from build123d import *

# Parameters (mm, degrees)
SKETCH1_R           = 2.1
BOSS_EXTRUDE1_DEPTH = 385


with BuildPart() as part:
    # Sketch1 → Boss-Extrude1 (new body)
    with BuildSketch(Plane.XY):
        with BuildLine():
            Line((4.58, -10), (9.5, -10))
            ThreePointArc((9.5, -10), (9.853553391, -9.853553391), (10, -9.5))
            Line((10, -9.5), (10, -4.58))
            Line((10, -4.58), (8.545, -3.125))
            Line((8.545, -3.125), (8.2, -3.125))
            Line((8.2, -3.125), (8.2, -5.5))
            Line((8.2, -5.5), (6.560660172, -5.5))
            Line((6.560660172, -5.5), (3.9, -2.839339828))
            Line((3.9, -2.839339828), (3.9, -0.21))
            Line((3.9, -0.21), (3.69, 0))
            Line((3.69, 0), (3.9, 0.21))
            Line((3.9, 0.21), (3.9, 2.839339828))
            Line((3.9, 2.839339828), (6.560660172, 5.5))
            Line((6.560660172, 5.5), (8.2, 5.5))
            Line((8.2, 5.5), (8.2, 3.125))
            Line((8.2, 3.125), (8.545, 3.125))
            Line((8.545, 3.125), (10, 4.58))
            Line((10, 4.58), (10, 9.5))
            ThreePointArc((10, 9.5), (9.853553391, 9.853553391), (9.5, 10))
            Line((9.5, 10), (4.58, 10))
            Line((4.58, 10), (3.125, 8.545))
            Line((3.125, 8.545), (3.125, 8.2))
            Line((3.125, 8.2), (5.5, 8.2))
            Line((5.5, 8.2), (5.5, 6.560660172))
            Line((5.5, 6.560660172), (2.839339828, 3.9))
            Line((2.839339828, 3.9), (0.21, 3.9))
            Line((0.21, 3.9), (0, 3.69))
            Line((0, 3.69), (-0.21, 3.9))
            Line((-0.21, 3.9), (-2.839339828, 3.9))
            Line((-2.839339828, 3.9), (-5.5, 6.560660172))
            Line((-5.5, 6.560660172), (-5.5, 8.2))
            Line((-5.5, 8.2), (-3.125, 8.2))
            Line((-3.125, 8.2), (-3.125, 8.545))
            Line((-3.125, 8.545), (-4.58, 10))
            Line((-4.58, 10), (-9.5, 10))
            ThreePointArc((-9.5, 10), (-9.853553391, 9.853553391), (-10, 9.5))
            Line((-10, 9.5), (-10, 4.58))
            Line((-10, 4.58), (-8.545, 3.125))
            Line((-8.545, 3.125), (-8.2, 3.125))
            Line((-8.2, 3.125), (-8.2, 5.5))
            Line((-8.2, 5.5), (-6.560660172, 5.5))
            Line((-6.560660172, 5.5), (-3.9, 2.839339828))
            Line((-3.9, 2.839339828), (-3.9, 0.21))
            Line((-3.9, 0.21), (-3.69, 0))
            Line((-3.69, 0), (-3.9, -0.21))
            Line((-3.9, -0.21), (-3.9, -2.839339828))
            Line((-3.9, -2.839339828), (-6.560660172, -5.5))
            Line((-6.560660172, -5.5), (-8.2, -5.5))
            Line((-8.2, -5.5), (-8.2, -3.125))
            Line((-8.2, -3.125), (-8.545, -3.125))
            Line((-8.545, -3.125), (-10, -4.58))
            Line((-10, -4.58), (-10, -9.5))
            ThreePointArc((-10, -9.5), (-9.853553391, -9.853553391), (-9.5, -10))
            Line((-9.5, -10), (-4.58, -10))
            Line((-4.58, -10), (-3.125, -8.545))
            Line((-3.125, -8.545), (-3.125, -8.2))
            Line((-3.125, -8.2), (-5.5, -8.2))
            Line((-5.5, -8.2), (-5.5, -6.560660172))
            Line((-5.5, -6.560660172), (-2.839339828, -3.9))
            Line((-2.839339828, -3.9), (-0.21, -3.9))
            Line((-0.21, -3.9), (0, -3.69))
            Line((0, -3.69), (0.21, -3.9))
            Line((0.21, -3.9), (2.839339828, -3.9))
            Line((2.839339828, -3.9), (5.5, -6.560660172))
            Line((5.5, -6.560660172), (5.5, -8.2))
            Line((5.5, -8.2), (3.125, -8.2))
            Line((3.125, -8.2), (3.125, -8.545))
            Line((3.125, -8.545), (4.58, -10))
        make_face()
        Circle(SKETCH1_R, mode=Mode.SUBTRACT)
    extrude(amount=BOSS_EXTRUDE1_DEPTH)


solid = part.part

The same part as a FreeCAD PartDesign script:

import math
import FreeCAD as App
import Part
import Sketcher
from FreeCAD import Vector

doc = App.newDocument("Part")
body = doc.addObject("PartDesign::Body", "Body")

sketch1 = body.newObject("Sketcher::SketchObject", "Sketch")
sketch1.AttachmentSupport = (doc.getObject("XY_Plane"), [""])
sketch1.MapMode = "FlatFace"
sketch1.addGeometry([
    Part.LineSegment(Vector(4.58, -10, 0), Vector(9.5, -10, 0)),
    Part.ArcOfCircle(Part.Circle(Vector(9.5, -9.5, 0), Vector(0, 0, 1), 0.5), math.radians(-90), math.radians(0)),
    Part.LineSegment(Vector(10, -9.5, 0), Vector(10, -4.58, 0)),
    Part.LineSegment(Vector(10, -4.58, 0), Vector(8.545, -3.125, 0)),
    Part.LineSegment(Vector(8.545, -3.125, 0), Vector(8.2, -3.125, 0)),
    Part.LineSegment(Vector(8.2, -3.125, 0), Vector(8.2, -5.5, 0)),
    Part.LineSegment(Vector(8.2, -5.5, 0), Vector(6.56066, -5.5, 0)),
    Part.LineSegment(Vector(6.56066, -5.5, 0), Vector(3.9, -2.83934, 0)),
    Part.LineSegment(Vector(3.9, -2.83934, 0), Vector(3.9, -0.21, 0)),
    Part.LineSegment(Vector(3.9, -0.21, 0), Vector(3.69, 0, 0)),
    Part.LineSegment(Vector(3.69, 0, 0), Vector(3.9, 0.21, 0)),
    Part.LineSegment(Vector(3.9, 0.21, 0), Vector(3.9, 2.83934, 0)),
    Part.LineSegment(Vector(3.9, 2.83934, 0), Vector(6.56066, 5.5, 0)),
    Part.LineSegment(Vector(6.56066, 5.5, 0), Vector(8.2, 5.5, 0)),
    Part.LineSegment(Vector(8.2, 5.5, 0), Vector(8.2, 3.125, 0)),
    Part.LineSegment(Vector(8.2, 3.125, 0), Vector(8.545, 3.125, 0)),
    Part.LineSegment(Vector(8.545, 3.125, 0), Vector(10, 4.58, 0)),
    Part.LineSegment(Vector(10, 4.58, 0), Vector(10, 9.5, 0)),
    Part.ArcOfCircle(Part.Circle(Vector(9.5, 9.5, 0), Vector(0, 0, 1), 0.5), math.radians(0), math.radians(90)),
    Part.LineSegment(Vector(9.5, 10, 0), Vector(4.58, 10, 0)),
    Part.LineSegment(Vector(4.58, 10, 0), Vector(3.125, 8.545, 0)),
    Part.LineSegment(Vector(3.125, 8.545, 0), Vector(3.125, 8.2, 0)),
    Part.LineSegment(Vector(3.125, 8.2, 0), Vector(5.5, 8.2, 0)),
    Part.LineSegment(Vector(5.5, 8.2, 0), Vector(5.5, 6.56066, 0)),
    Part.LineSegment(Vector(5.5, 6.56066, 0), Vector(2.83934, 3.9, 0)),
    Part.LineSegment(Vector(2.83934, 3.9, 0), Vector(0.21, 3.9, 0)),
    Part.LineSegment(Vector(0.21, 3.9, 0), Vector(0, 3.69, 0)),
    Part.LineSegment(Vector(0, 3.69, 0), Vector(-0.21, 3.9, 0)),
    Part.LineSegment(Vector(-0.21, 3.9, 0), Vector(-2.83934, 3.9, 0)),
    Part.LineSegment(Vector(-2.83934, 3.9, 0), Vector(-5.5, 6.56066, 0)),
    Part.LineSegment(Vector(-5.5, 6.56066, 0), Vector(-5.5, 8.2, 0)),
    Part.LineSegment(Vector(-5.5, 8.2, 0), Vector(-3.125, 8.2, 0)),
    Part.LineSegment(Vector(-3.125, 8.2, 0), Vector(-3.125, 8.545, 0)),
    Part.LineSegment(Vector(-3.125, 8.545, 0), Vector(-4.58, 10, 0)),
    Part.LineSegment(Vector(-4.58, 10, 0), Vector(-9.5, 10, 0)),
    Part.ArcOfCircle(Part.Circle(Vector(-9.5, 9.5, 0), Vector(0, 0, 1), 0.5), math.radians(90), math.radians(180)),
    Part.LineSegment(Vector(-10, 9.5, 0), Vector(-10, 4.58, 0)),
    Part.LineSegment(Vector(-10, 4.58, 0), Vector(-8.545, 3.125, 0)),
    Part.LineSegment(Vector(-8.545, 3.125, 0), Vector(-8.2, 3.125, 0)),
    Part.LineSegment(Vector(-8.2, 3.125, 0), Vector(-8.2, 5.5, 0)),
    Part.LineSegment(Vector(-8.2, 5.5, 0), Vector(-6.56066, 5.5, 0)),
    Part.LineSegment(Vector(-6.56066, 5.5, 0), Vector(-3.9, 2.83934, 0)),
    Part.LineSegment(Vector(-3.9, 2.83934, 0), Vector(-3.9, 0.21, 0)),
    Part.LineSegment(Vector(-3.9, 0.21, 0), Vector(-3.69, 0, 0)),
    Part.LineSegment(Vector(-3.69, 0, 0), Vector(-3.9, -0.21, 0)),
    Part.LineSegment(Vector(-3.9, -0.21, 0), Vector(-3.9, -2.83934, 0)),
    Part.LineSegment(Vector(-3.9, -2.83934, 0), Vector(-6.56066, -5.5, 0)),
    Part.LineSegment(Vector(-6.56066, -5.5, 0), Vector(-8.2, -5.5, 0)),
    Part.LineSegment(Vector(-8.2, -5.5, 0), Vector(-8.2, -3.125, 0)),
    Part.LineSegment(Vector(-8.2, -3.125, 0), Vector(-8.545, -3.125, 0)),
    Part.LineSegment(Vector(-8.545, -3.125, 0), Vector(-10, -4.58, 0)),
    Part.LineSegment(Vector(-10, -4.58, 0), Vector(-10, -9.5, 0)),
    Part.ArcOfCircle(Part.Circle(Vector(-9.5, -9.5, 0), Vector(0, 0, 1), 0.5), math.radians(180), math.radians(270)),
    Part.LineSegment(Vector(-9.5, -10, 0), Vector(-4.58, -10, 0)),
    Part.LineSegment(Vector(-4.58, -10, 0), Vector(-3.125, -8.545, 0)),
    Part.LineSegment(Vector(-3.125, -8.545, 0), Vector(-3.125, -8.2, 0)),
    Part.LineSegment(Vector(-3.125, -8.2, 0), Vector(-5.5, -8.2, 0)),
    Part.LineSegment(Vector(-5.5, -8.2, 0), Vector(-5.5, -6.56066, 0)),
    Part.LineSegment(Vector(-5.5, -6.56066, 0), Vector(-2.83934, -3.9, 0)),
    Part.LineSegment(Vector(-2.83934, -3.9, 0), Vector(-0.21, -3.9, 0)),
    Part.LineSegment(Vector(-0.21, -3.9, 0), Vector(0, -3.69, 0)),
    Part.LineSegment(Vector(0, -3.69, 0), Vector(0.21, -3.9, 0)),
    Part.LineSegment(Vector(0.21, -3.9, 0), Vector(2.83934, -3.9, 0)),
    Part.LineSegment(Vector(2.83934, -3.9, 0), Vector(5.5, -6.56066, 0)),
    Part.LineSegment(Vector(5.5, -6.56066, 0), Vector(5.5, -8.2, 0)),
    Part.LineSegment(Vector(5.5, -8.2, 0), Vector(3.125, -8.2, 0)),
    Part.LineSegment(Vector(3.125, -8.2, 0), Vector(3.125, -8.545, 0)),
    Part.LineSegment(Vector(3.125, -8.545, 0), Vector(4.58, -10, 0)),
    Part.Circle(Vector(0, 0, 0), Vector(0, 0, 1), 2.1),
], False)
sketch1.addConstraint([
    Sketcher.Constraint("Tangent", 0, 2, 1, 1),
    Sketcher.Constraint("Tangent", 1, 2, 2, 1),
    Sketcher.Constraint("Coincident", 2, 2, 3, 1),
    Sketcher.Constraint("Coincident", 3, 2, 4, 1),
    Sketcher.Constraint("Coincident", 4, 2, 5, 1),
    Sketcher.Constraint("Coincident", 5, 2, 6, 1),
    Sketcher.Constraint("Coincident", 6, 2, 7, 1),
    Sketcher.Constraint("Coincident", 7, 2, 8, 1),
    Sketcher.Constraint("Coincident", 8, 2, 9, 1),
    Sketcher.Constraint("Coincident", 9, 2, 10, 1),
    Sketcher.Constraint("Coincident", 10, 2, 11, 1),
    Sketcher.Constraint("Coincident", 11, 2, 12, 1),
    Sketcher.Constraint("Coincident", 12, 2, 13, 1),
    Sketcher.Constraint("Coincident", 13, 2, 14, 1),
    Sketcher.Constraint("Coincident", 14, 2, 15, 1),
    Sketcher.Constraint("Coincident", 15, 2, 16, 1),
    Sketcher.Constraint("Coincident", 16, 2, 17, 1),
    Sketcher.Constraint("Tangent", 17, 2, 18, 1),
    Sketcher.Constraint("Tangent", 18, 2, 19, 1),
    Sketcher.Constraint("Coincident", 19, 2, 20, 1),
    Sketcher.Constraint("Coincident", 20, 2, 21, 1),
    Sketcher.Constraint("Coincident", 21, 2, 22, 1),
    Sketcher.Constraint("Coincident", 22, 2, 23, 1),
    Sketcher.Constraint("Coincident", 23, 2, 24, 1),
    Sketcher.Constraint("Coincident", 24, 2, 25, 1),
    Sketcher.Constraint("Coincident", 25, 2, 26, 1),
    Sketcher.Constraint("Coincident", 26, 2, 27, 1),
    Sketcher.Constraint("Coincident", 27, 2, 28, 1),
    Sketcher.Constraint("Coincident", 28, 2, 29, 1),
    Sketcher.Constraint("Coincident", 29, 2, 30, 1),
    Sketcher.Constraint("Coincident", 30, 2, 31, 1),
    Sketcher.Constraint("Coincident", 31, 2, 32, 1),
    Sketcher.Constraint("Coincident", 32, 2, 33, 1),
    Sketcher.Constraint("Coincident", 33, 2, 34, 1),
    Sketcher.Constraint("Tangent", 34, 2, 35, 1),
    Sketcher.Constraint("Tangent", 35, 2, 36, 1),
    Sketcher.Constraint("Coincident", 36, 2, 37, 1),
    Sketcher.Constraint("Coincident", 37, 2, 38, 1),
    Sketcher.Constraint("Coincident", 38, 2, 39, 1),
    Sketcher.Constraint("Coincident", 39, 2, 40, 1),
    Sketcher.Constraint("Coincident", 40, 2, 41, 1),
    Sketcher.Constraint("Coincident", 41, 2, 42, 1),
    Sketcher.Constraint("Coincident", 42, 2, 43, 1),
    Sketcher.Constraint("Coincident", 43, 2, 44, 1),
    Sketcher.Constraint("Coincident", 44, 2, 45, 1),
    Sketcher.Constraint("Coincident", 45, 2, 46, 1),
    Sketcher.Constraint("Coincident", 46, 2, 47, 1),
    Sketcher.Constraint("Coincident", 47, 2, 48, 1),
    Sketcher.Constraint("Coincident", 48, 2, 49, 1),
    Sketcher.Constraint("Coincident", 49, 2, 50, 1),
    Sketcher.Constraint("Coincident", 50, 2, 51, 1),
    Sketcher.Constraint("Tangent", 51, 2, 52, 1),
    Sketcher.Constraint("Tangent", 52, 2, 53, 1),
    Sketcher.Constraint("Coincident", 53, 2, 54, 1),
    Sketcher.Constraint("Coincident", 54, 2, 55, 1),
    Sketcher.Constraint("Coincident", 55, 2, 56, 1),
    Sketcher.Constraint("Coincident", 56, 2, 57, 1),
    Sketcher.Constraint("Coincident", 57, 2, 58, 1),
    Sketcher.Constraint("Coincident", 58, 2, 59, 1),
    Sketcher.Constraint("Coincident", 59, 2, 60, 1),
    Sketcher.Constraint("Coincident", 60, 2, 61, 1),
    Sketcher.Constraint("Coincident", 61, 2, 62, 1),
    Sketcher.Constraint("Coincident", 62, 2, 63, 1),
    Sketcher.Constraint("Coincident", 63, 2, 64, 1),
    Sketcher.Constraint("Coincident", 64, 2, 65, 1),
    Sketcher.Constraint("Coincident", 65, 2, 66, 1),
    Sketcher.Constraint("Coincident", 66, 2, 67, 1),
    Sketcher.Constraint("Coincident", 67, 2, 0, 1),
    Sketcher.Constraint("Horizontal", 0),
    Sketcher.Constraint("Vertical", 2),
    Sketcher.Constraint("Horizontal", 4),
    Sketcher.Constraint("Vertical", 5),
    Sketcher.Constraint("Horizontal", 6),
    Sketcher.Constraint("Vertical", 8),
    Sketcher.Constraint("Vertical", 11),
    Sketcher.Constraint("Horizontal", 13),
    Sketcher.Constraint("Vertical", 14),
    Sketcher.Constraint("Horizontal", 15),
    Sketcher.Constraint("Vertical", 17),
    Sketcher.Constraint("Horizontal", 19),
    Sketcher.Constraint("Vertical", 21),
    Sketcher.Constraint("Horizontal", 22),
    Sketcher.Constraint("Vertical", 23),
    Sketcher.Constraint("Horizontal", 25),
    Sketcher.Constraint("Horizontal", 28),
    Sketcher.Constraint("Vertical", 30),
    Sketcher.Constraint("Horizontal", 31),
    Sketcher.Constraint("Vertical", 32),
    Sketcher.Constraint("Horizontal", 34),
    Sketcher.Constraint("Vertical", 36),
    Sketcher.Constraint("Horizontal", 38),
    Sketcher.Constraint("Vertical", 39),
    Sketcher.Constraint("Horizontal", 40),
    Sketcher.Constraint("Vertical", 42),
    Sketcher.Constraint("Vertical", 45),
    Sketcher.Constraint("Horizontal", 47),
    Sketcher.Constraint("Vertical", 48),
    Sketcher.Constraint("Horizontal", 49),
    Sketcher.Constraint("Vertical", 51),
    Sketcher.Constraint("Horizontal", 53),
    Sketcher.Constraint("Vertical", 55),
    Sketcher.Constraint("Horizontal", 56),
    Sketcher.Constraint("Vertical", 57),
    Sketcher.Constraint("Horizontal", 59),
    Sketcher.Constraint("Horizontal", 62),
    Sketcher.Constraint("Vertical", 64),
    Sketcher.Constraint("Horizontal", 65),
    Sketcher.Constraint("Vertical", 66),
    Sketcher.Constraint("Coincident", 68, 3, -1, 1),
    Sketcher.Constraint("Equal", 1, 18),
    Sketcher.Constraint("Equal", 18, 35),
    Sketcher.Constraint("Equal", 35, 52),
    Sketcher.Constraint("Symmetric", 1, 3, 35, 3, -1, 1),
    Sketcher.Constraint("Symmetric", 18, 3, 52, 3, -1, 1),
    Sketcher.Constraint("Symmetric", 3, 2, 37, 2, -1, 1),
    Sketcher.Constraint("Symmetric", 5, 2, 39, 2, -1, 1),
    Sketcher.Constraint("Symmetric", 7, 2, 41, 2, -1, 1),
    Sketcher.Constraint("Symmetric", 9, 2, 43, 2, -1, 1),
    Sketcher.Constraint("Symmetric", 10, 2, 44, 2, -1, 1),
    Sketcher.Constraint("Symmetric", 12, 2, 46, 2, -1, 1),
    Sketcher.Constraint("Symmetric", 14, 2, 48, 2, -1, 1),
    Sketcher.Constraint("Symmetric", 20, 2, 54, 2, -1, 1),
    Sketcher.Constraint("Symmetric", 22, 2, 56, 2, -1, 1),
    Sketcher.Constraint("Symmetric", 24, 2, 58, 2, -1, 1),
    Sketcher.Constraint("Symmetric", 26, 2, 60, 2, -1, 1),
    Sketcher.Constraint("Symmetric", 27, 2, 61, 2, -1, 1),
    Sketcher.Constraint("Symmetric", 29, 2, 63, 2, -1, 1),
    Sketcher.Constraint("Symmetric", 31, 2, 65, 2, -1, 1),
    Sketcher.Constraint("Symmetric", 18, 3, 35, 3, -2),
    Sketcher.Constraint("Symmetric", 25, 2, 27, 2, -2),
    Sketcher.Constraint("Symmetric", 23, 2, 29, 2, -2),
    Sketcher.Constraint("Symmetric", 21, 2, 31, 2, -2),
    Sketcher.Constraint("Symmetric", 15, 2, 37, 2, -2),
    Sketcher.Constraint("Symmetric", 13, 2, 39, 2, -2),
    Sketcher.Constraint("Symmetric", 11, 2, 41, 2, -2),
    Sketcher.Constraint("PointOnObject", 9, 2, -1),
    Sketcher.Constraint("PointOnObject", 26, 2, -2),
    Sketcher.Constraint("Parallel", 3, 7),
    Sketcher.Constraint("Parallel", 7, 9),
    Sketcher.Constraint("Perpendicular", 9, 10),
    Sketcher.Constraint("Parallel", 10, 12),
    Sketcher.Constraint("Parallel", 12, 16),
    Sketcher.Constraint("Parallel", 16, 20),
    Sketcher.Constraint("Parallel", 20, 24),
    Sketcher.Constraint("Parallel", 24, 26),
    Sketcher.Constraint("Perpendicular", 26, 27),
    Sketcher.Constraint("Parallel", 27, 29),
    Sketcher.Constraint("Parallel", 29, 33),
    Sketcher.Constraint("Parallel", 33, 37),
    Sketcher.Constraint("Parallel", 37, 41),
    Sketcher.Constraint("Parallel", 41, 43),
    Sketcher.Constraint("Parallel", 44, 46),
    Sketcher.Constraint("Parallel", 46, 50),
    Sketcher.Constraint("Parallel", 50, 54),
    Sketcher.Constraint("Parallel", 54, 58),
    Sketcher.Constraint("Parallel", 58, 60),
    Sketcher.Constraint("Parallel", 61, 63),
    Sketcher.Constraint("Parallel", 63, 67),
    Sketcher.Constraint("Horizontal", 20, 2, 32, 2),
    Sketcher.Constraint("Horizontal", 2, 2, 50, 2),
    Sketcher.Constraint("Horizontal", 54, 2, 66, 2),
    Sketcher.Constraint("Equal", 53, 2),
    Sketcher.Constraint("Equal", 65, 5),
    Sketcher.Constraint("Equal", 62, 8),
    Sketcher.Constraint("Equal", 49, 21),
    Sketcher.Constraint("Equal", 47, 23),
    Sketcher.Constraint("Equal", 16, 20),
    Sketcher.Constraint("Equal", 12, 24),
    Sketcher.Constraint("Equal", 10, 26),
    Sketcher.Constraint("Diameter", 68, 4.2),
    Sketcher.Constraint("Radius", 1, 0.5),
    Sketcher.Constraint("DistanceY", 0, 2, -1, 1, 10.0),
    Sketcher.Constraint("DistanceX", 0, 1, 0, 2, 4.92),
    Sketcher.Constraint("DistanceX", -1, 1, 4, 2, 8.2),
    Sketcher.Constraint("DistanceY", 5, 2, -1, 1, 5.5),
    Sketcher.Constraint("DistanceX", -1, 1, 7, 2, 3.9),
    Sketcher.Constraint("DistanceX", 4, 2, 4, 1, 0.345),
    Sketcher.Constraint("DistanceY", 8, 2, -1, 1, 0.21),
    Sketcher.Constraint("DistanceX", 6, 2, 6, 1, 1.63934),
])
pad1 = body.newObject("PartDesign::Pad", "Pad")
pad1.Profile = sketch1
pad1.Length = 385

doc.recompute()
